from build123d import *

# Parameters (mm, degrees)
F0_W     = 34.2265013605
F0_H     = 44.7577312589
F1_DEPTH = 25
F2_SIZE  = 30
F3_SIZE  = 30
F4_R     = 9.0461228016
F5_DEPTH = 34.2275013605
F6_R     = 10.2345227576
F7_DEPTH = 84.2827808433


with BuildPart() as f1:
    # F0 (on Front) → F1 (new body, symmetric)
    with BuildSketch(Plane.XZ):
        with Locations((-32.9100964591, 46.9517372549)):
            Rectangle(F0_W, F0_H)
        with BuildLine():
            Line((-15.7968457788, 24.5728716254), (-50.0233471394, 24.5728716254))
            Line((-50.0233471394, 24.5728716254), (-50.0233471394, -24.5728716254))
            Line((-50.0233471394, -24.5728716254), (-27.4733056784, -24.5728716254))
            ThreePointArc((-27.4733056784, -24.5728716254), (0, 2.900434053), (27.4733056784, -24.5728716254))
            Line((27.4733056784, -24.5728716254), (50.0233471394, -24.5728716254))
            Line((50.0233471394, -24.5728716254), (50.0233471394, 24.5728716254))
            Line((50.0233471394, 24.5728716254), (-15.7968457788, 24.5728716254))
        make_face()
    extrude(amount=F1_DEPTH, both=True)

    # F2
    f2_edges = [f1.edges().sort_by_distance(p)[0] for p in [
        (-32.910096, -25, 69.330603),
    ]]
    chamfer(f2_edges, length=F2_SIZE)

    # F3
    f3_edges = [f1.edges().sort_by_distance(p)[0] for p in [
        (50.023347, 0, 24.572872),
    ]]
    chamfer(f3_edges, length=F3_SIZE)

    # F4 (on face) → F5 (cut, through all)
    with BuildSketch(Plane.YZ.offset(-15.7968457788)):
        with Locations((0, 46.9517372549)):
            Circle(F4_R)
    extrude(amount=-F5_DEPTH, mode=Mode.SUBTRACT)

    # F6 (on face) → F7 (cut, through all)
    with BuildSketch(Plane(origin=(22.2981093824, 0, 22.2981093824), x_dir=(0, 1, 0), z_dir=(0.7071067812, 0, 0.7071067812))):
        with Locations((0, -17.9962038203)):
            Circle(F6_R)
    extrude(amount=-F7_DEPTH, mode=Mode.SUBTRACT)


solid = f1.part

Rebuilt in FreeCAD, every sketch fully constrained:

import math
import FreeCAD as App
import Part
import Sketcher
Q = App.Units.Quantity


def edges_at(feature, points):
    """Names of the edges that pass closest to the given points."""
    edges = feature.Shape.Edges
    near = lambda p: min(range(len(edges)), key=lambda i: edges[i].distToShape(Part.Vertex(*p))[0])
    return sorted({f"Edge{near(p) + 1}" for p in points})

doc = App.newDocument("Part")
body = doc.addObject("PartDesign::Body", "Body")

# Sketch on XZ plane
sketch1 = body.newObject("Sketcher::SketchObject", "Sketch")
sketch1.AttachmentSupport = (doc.getObject("XZ_Plane"), [""])
sketch1.MapMode = "FlatFace"
sketch1.addGeometry(Part.LineSegment(App.Vector(-50, 69, 0), App.Vector(-50, -25, 0)), False)
sketch1.addGeometry(Part.LineSegment(App.Vector(-50, -25, 0), App.Vector(-27, -25, 0)), False)
sketch1.addGeometry(Part.ArcOfCircle(Part.Circle(App.Vector(0, -25, 0), App.Vector(0, 0, 1), 27), math.radians(0), math.radians(180)), False)
sketch1.addGeometry(Part.LineSegment(App.Vector(27, -25, 0), App.Vector(50, -25, 0)), False)
sketch1.addGeometry(Part.LineSegment(App.Vector(50, -25, 0), App.Vector(50, 25, 0)), False)
sketch1.addGeometry(Part.LineSegment(App.Vector(50, 25, 0), App.Vector(-16, 25, 0)), False)
sketch1.addGeometry(Part.LineSegment(App.Vector(-16, 25, 0), App.Vector(-16, 69, 0)), False)
sketch1.addGeometry(Part.LineSegment(App.Vector(-16, 69, 0), App.Vector(-50, 69, 0)), False)
sketch1.addConstraint(Sketcher.Constraint("Coincident", 0, 2, 1, 1))
sketch1.addConstraint(Sketcher.Constraint("Coincident", 1, 2, 2, 2))
sketch1.addConstraint(Sketcher.Constraint("Coincident", 2, 1, 3, 1))
sketch1.addConstraint(Sketcher.Constraint("Coincident", 3, 2, 4, 1))
sketch1.addConstraint(Sketcher.Constraint("Coincident", 4, 2, 5, 1))
sketch1.addConstraint(Sketcher.Constraint("Coincident", 5, 2, 6, 1))
sketch1.addConstraint(Sketcher.Constraint("Coincident", 6, 2, 7, 1))
sketch1.addConstraint(Sketcher.Constraint("Coincident", 7, 2, 0, 1))
sketch1.addConstraint(Sketcher.Constraint("Vertical", 0))
sketch1.addConstraint(Sketcher.Constraint("Horizontal", 1))
sketch1.addConstraint(Sketcher.Constraint("Horizontal", 3))
sketch1.addConstraint(Sketcher.Constraint("Vertical", 4))
sketch1.addConstraint(Sketcher.Constraint("Horizontal", 5))
sketch1.addConstraint(Sketcher.Constraint("Vertical", 6))
sketch1.addConstraint(Sketcher.Constraint("Horizontal", 7))
sketch1.addConstraint(Sketcher.Constraint("Symmetric", 0, 2, 4, 2, -1, 1))
sketch1.addConstraint(Sketcher.Constraint("Symmetric", 1, 2, 2, 1, -2))
sketch1.addConstraint(Sketcher.Constraint("Horizontal", 2, 3, 0, 2))
sketch1.addConstraint(Sketcher.Constraint("DistanceX", 7, 2, 7, 1, Q("34.226501 mm")))
sketch1.addConstraint(Sketcher.Constraint("Radius", 2, Q("27.473306 mm")))
sketch1.addConstraint(Sketcher.Constraint("DistanceX", 1, 1, 1, 2, Q("22.550041 mm")))
sketch1.addConstraint(Sketcher.Constraint("DistanceY", 6, 1, 6, 2, Q("44.757731 mm")))
sketch1.addConstraint(Sketcher.Constraint("DistanceY", 0, 2, 0, 1, Q("93.903475 mm")))
pad1 = body.newObject("PartDesign::Pad", "Pad")
pad1.Profile = sketch1
pad1.Length = 50
pad1.Midplane = True
doc.recompute()

chamfer = body.newObject("PartDesign::Chamfer", "Chamfer")
chamfer.Base = (pad1, edges_at(pad1, [(-32.91, -25, 69.331)]))
chamfer.Size = 30
doc.recompute()

chamfer2 = body.newObject("PartDesign::Chamfer", "Chamfer001")
chamfer2.Base = (chamfer, edges_at(chamfer, [(50.023, 0, 24.573)]))
chamfer2.Size = 30

# Sketch on YZ plane
sketch2 = body.newObject("Sketcher::SketchObject", "Sketch001")
sketch2.AttachmentSupport = (doc.getObject("YZ_Plane"), [""])
sketch2.MapMode = "FlatFace"
sketch2.AttachmentOffset = App.Placement(App.Vector(0, 0, -15.796846), App.Rotation())
sketch2.addGeometry(Part.Circle(App.Vector(0, 47, 0), App.Vector(0, 0, 1), 9), False)
sketch2.addConstraint(Sketcher.Constraint("PointOnObject", 0, 3, -2))
sketch2.addConstraint(Sketcher.Constraint("Diameter", 0, Q("18.092246 mm")))
sketch2.addConstraint(Sketcher.Constraint("DistanceY", -1, 1, 0, 3, Q("46.951737 mm")))
pocket1 = body.newObject("PartDesign::Pocket", "Pocket")
pocket1.Profile = sketch2
pocket1.Type = "ThroughAll"

# Sketch on an angled plane
sketch3 = body.newObject("Sketcher::SketchObject", "Sketch002")
sketch3.Placement = App.Placement(App.Vector(22.298109, 0, 22.298109), App.Rotation(App.Vector(0, 1, 0), App.Vector(-0.707106781, 0, 0.707106781), App.Vector(0.707106781, 0, 0.707106781), "ZXY"))
sketch3.addGeometry(Part.Circle(App.Vector(0, -18, 0), App.Vector(0, 0, 1), 10), False)
sketch3.addConstraint(Sketcher.Constraint("PointOnObject", 0, 3, -2))
sketch3.addConstraint(Sketcher.Constraint("Diameter", 0, Q("20.469046 mm")))
sketch3.addConstraint(Sketcher.Constraint("DistanceY", 0, 3, -1, 1, Q("17.996204 mm")))
pocket2 = body.newObject("PartDesign::Pocket", "Pocket001")
pocket2.Profile = sketch3
pocket2.Type = "ThroughAll"

doc.recompute()
